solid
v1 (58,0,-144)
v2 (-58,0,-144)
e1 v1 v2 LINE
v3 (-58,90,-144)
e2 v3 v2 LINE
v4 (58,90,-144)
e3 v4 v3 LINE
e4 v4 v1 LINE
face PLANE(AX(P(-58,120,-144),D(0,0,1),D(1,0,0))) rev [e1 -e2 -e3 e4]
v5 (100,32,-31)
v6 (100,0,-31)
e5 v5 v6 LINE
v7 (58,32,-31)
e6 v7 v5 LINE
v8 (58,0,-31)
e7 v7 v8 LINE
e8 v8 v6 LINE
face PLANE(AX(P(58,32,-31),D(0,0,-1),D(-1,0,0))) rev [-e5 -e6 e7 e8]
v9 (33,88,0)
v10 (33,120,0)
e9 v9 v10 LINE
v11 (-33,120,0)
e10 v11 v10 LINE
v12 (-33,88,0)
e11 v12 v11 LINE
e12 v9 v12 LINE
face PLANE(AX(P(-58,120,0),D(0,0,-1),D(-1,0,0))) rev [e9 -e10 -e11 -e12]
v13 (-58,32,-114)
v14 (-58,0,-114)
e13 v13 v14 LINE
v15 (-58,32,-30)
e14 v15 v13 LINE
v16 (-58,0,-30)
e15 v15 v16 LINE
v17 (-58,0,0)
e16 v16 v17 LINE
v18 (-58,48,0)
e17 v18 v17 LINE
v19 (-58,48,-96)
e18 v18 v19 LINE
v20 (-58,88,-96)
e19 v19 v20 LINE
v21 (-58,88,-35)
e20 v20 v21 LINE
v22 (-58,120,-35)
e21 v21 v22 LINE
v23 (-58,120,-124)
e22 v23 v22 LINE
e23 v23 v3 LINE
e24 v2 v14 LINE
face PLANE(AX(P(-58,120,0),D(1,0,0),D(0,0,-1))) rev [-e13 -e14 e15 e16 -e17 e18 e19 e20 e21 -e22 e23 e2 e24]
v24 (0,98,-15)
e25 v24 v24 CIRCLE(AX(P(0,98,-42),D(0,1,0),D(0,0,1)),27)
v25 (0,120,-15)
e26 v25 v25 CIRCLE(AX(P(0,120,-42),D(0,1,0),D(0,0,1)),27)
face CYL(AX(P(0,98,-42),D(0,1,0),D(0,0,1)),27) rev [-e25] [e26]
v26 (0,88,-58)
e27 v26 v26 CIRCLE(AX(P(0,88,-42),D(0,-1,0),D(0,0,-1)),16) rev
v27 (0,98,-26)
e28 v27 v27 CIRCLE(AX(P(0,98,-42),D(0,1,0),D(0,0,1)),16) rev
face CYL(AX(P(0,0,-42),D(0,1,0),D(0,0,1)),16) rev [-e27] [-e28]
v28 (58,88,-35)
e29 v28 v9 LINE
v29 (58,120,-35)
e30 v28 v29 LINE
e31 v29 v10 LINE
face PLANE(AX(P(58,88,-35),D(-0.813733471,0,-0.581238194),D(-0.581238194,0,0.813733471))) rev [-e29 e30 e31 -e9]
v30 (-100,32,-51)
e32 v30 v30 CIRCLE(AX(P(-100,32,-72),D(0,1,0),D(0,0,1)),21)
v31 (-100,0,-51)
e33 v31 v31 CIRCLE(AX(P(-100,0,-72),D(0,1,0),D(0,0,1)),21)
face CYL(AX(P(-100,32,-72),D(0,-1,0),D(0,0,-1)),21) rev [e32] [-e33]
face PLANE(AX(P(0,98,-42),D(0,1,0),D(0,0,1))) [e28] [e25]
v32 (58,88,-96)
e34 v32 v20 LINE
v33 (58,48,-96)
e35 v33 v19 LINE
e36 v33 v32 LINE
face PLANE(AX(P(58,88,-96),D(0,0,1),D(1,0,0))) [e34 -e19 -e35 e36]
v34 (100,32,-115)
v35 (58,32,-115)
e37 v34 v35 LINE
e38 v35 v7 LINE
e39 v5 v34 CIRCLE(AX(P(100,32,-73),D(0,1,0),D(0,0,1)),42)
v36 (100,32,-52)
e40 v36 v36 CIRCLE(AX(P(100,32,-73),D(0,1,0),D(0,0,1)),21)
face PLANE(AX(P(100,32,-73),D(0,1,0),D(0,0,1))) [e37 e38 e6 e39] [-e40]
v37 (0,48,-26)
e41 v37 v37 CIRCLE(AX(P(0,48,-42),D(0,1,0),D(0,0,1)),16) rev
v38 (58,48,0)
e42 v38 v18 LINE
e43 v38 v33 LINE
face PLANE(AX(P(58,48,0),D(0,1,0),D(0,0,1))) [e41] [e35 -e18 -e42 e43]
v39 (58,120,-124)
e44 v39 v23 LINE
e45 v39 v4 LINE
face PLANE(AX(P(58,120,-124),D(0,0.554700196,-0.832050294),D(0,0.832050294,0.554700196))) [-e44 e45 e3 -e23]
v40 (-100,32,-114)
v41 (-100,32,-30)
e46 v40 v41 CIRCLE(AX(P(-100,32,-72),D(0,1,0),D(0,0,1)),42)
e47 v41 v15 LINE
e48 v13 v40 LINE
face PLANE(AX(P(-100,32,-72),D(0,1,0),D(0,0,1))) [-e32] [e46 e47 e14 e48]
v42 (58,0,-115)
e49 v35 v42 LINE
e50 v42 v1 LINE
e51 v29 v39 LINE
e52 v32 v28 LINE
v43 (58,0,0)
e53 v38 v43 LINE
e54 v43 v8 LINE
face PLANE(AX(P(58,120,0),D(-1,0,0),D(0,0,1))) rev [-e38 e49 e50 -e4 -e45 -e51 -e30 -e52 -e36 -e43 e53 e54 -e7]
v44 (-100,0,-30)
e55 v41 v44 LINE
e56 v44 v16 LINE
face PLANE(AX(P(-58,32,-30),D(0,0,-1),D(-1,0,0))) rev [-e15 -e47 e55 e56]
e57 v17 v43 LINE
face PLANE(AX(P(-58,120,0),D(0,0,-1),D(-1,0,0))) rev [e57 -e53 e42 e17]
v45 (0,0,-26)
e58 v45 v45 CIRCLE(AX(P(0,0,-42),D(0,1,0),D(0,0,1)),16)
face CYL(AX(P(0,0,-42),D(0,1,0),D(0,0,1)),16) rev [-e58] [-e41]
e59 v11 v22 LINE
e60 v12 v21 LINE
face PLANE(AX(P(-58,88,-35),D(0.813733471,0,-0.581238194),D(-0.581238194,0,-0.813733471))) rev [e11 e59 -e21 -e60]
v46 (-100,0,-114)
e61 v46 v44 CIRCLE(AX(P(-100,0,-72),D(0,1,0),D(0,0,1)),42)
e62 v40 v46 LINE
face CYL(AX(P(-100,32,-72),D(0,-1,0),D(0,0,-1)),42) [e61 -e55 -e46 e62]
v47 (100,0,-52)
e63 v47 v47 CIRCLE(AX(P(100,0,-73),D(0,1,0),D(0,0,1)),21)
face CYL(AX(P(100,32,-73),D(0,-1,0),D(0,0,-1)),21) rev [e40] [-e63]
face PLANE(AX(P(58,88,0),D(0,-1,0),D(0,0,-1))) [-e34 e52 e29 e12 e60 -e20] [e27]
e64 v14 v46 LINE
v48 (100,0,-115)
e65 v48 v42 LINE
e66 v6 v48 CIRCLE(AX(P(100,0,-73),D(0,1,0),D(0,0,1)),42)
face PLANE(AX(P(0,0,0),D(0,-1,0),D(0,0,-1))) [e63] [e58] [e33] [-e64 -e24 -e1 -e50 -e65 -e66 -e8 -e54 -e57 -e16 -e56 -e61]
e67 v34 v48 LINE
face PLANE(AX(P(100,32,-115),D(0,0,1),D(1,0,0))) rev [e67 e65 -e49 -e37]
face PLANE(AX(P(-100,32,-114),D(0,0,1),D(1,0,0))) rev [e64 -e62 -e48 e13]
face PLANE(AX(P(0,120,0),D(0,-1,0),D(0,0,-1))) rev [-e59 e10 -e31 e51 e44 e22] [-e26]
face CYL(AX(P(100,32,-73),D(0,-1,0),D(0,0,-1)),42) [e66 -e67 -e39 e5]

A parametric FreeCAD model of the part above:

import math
import FreeCAD as App
import Part
import Sketcher
from FreeCAD import Vector
Q = App.Units.Quantity


def add_polygon(sketch, points):
    """Adds a closed chain of lines whose ends are joined by coincident constraints."""
    first, n = sketch.GeometryCount, len(points)
    for a, b in zip(points, points[1:] + points[:1]):
        sketch.addGeometry(Part.LineSegment(App.Vector(*a, 0), App.Vector(*b, 0)), False)
    for i in range(n):
        sketch.addConstraint(Sketcher.Constraint("Coincident", first + i, 2, first + (i + 1) % n, 1))

doc = App.newDocument("Part")
body = doc.addObject("PartDesign::Body", "Body")

sketch1 = body.newObject("Sketcher::SketchObject", "Sketch")
sketch1.AttachmentSupport = (doc.getObject("XZ_Plane"), [""])
sketch1.MapMode = "FlatFace"
add_polygon(sketch1, [(-58, -144), (-58, 0), (58, 0), (58, -144)])
sketch1.addConstraint(Sketcher.Constraint("Vertical", 0))
sketch1.addConstraint(Sketcher.Constraint("Horizontal", 1))
sketch1.addConstraint(Sketcher.Constraint("Vertical", 2))
sketch1.addConstraint(Sketcher.Constraint("Horizontal", 3))
sketch1.addConstraint(Sketcher.Constraint("Symmetric", 0, 2, 1, 2, -1, 1))
sketch1.addConstraint(Sketcher.Constraint("DistanceX", 1, 1, 1, 2, Q("116 mm")))
sketch1.addConstraint(Sketcher.Constraint("DistanceY", 0, 1, 0, 2, Q("144 mm")))
pad1 = body.newObject("PartDesign::Pad", "Pad")
pad1.Profile = sketch1
pad1.Length = 120
pad1.Reversed = True

sketch2 = body.newObject("Sketcher::SketchObject", "Sketch001")
sketch2.AttachmentSupport = (doc.getObject("XZ_Plane"), [""])
sketch2.MapMode = "FlatFace"
sketch2.addGeometry(Part.LineSegment(Vector(-58, -114, 0), Vector(-100, -114, 0)), False)
sketch2.addGeometry(Part.ArcOfCircle(Part.Circle(Vector(-100, -72, 0), Vector(0, 0, 1), 42), math.radians(90), math.radians(270)), False)
sketch2.addGeometry(Part.LineSegment(Vector(-100, -30, 0), Vector(-58, -30, 0)), False)
sketch2.addGeometry(Part.LineSegment(Vector(-58, -30, 0), Vector(-58, -114, 0)), False)
sketch2.addGeometry(Part.Circle(Vector(-100, -72, 0), Vector(0, 0, 1), 21), False)
sketch2.addGeometry(Part.LineSegment(Vector(100, -115, 0), Vector(58, -115, 0)), False)
sketch2.addGeometry(Part.LineSegment(Vector(58, -115, 0), Vector(58, -31, 0)), False)
sketch2.addGeometry(Part.LineSegment(Vector(58, -31, 0), Vector(100, -31, 0)), False)
sketch2.addGeometry(Part.ArcOfCircle(Part.Circle(Vector(100, -73, 0), Vector(0, 0, 1), 42), math.radians(-90), math.radians(90)), False)
sketch2.addGeometry(Part.Circle(Vector(100, -73, 0), Vector(0, 0, 1), 21), False)
sketch2.addConstraint(Sketcher.Constraint("Tangent", 0, 2, 1, 2))
sketch2.addConstraint(Sketcher.Constraint("Tangent", 1, 1, 2, 1))
sketch2.addConstraint(Sketcher.Constraint("Coincident", 2, 2, 3, 1))
sketch2.addConstraint(Sketcher.Constraint("Coincident", 3, 2, 0, 1))
sketch2.addConstraint(Sketcher.Constraint("Coincident", 5, 2, 6, 1))
sketch2.addConstraint(Sketcher.Constraint("Coincident", 6, 2, 7, 1))
sketch2.addConstraint(Sketcher.Constraint("Tangent", 7, 2, 8, 2))
sketch2.addConstraint(Sketcher.Constraint("Tangent", 8, 1, 5, 1))
sketch2.addConstraint(Sketcher.Constraint("Horizontal", 0))
sketch2.addConstraint(Sketcher.Constraint("Horizontal", 2))
sketch2.addConstraint(Sketcher.Constraint("Vertical", 3))
sketch2.addConstraint(Sketcher.Constraint("Horizontal", 5))
sketch2.addConstraint(Sketcher.Constraint("Vertical", 6))
sketch2.addConstraint(Sketcher.Constraint("Horizontal", 7))
sketch2.addConstraint(Sketcher.Constraint("Coincident", 4, 3, 1, 3))
sketch2.addConstraint(Sketcher.Constraint("Coincident", 9, 3, 8, 3))
sketch2.addConstraint(Sketcher.Constraint("Equal", 1, 8))
sketch2.addConstraint(Sketcher.Constraint("Equal", 4, 9))
sketch2.addConstraint(Sketcher.Constraint("Equal", 2, 5))
sketch2.addConstraint(Sketcher.Constraint("Diameter", 4, Q("42 mm")))
sketch2.addConstraint(Sketcher.Constraint("Radius", 1, Q("42 mm")))
sketch2.addConstraint(Sketcher.Constraint("DistanceX", 0, 2, 0, 1, Q("42 mm")))
sketch2.addConstraint(Sketcher.Constraint("DistanceX", 1, 3, -1, 1, Q("100 mm")))
sketch2.addConstraint(Sketcher.Constraint("DistanceY", 1, 3, -1, 1, Q("72 mm")))
sketch2.addConstraint(Sketcher.Constraint("DistanceX", -1, 1, 8, 3, Q("100 mm")))
sketch2.addConstraint(Sketcher.Constraint("DistanceY", 8, 3, -1, 1, Q("73 mm")))
pad2 = body.newObject("PartDesign::Pad", "Pad001")
pad2.Profile = sketch2
pad2.Length = 32
pad2.Reversed = True

sketch3 = body.newObject("Sketcher::SketchObject", "Sketch002")
sketch3.AttachmentSupport = (doc.getObject("XZ_Plane"), [""])
sketch3.MapMode = "FlatFace"
sketch3.AttachmentOffset = App.Placement(Vector(0, 0, -120), App.Rotation())
sketch3.addGeometry(Part.Circle(Vector(0, -42, 0), Vector(0, 0, 1), 16), False)
sketch3.addConstraint(Sketcher.Constraint("PointOnObject", 0, 3, -2))
sketch3.addConstraint(Sketcher.Constraint("Diameter", 0, Q("32 mm")))
sketch3.addConstraint(Sketcher.Constraint("DistanceY", 0, 3, -1, 1, Q("42 mm")))
pocket1 = body.newObject("PartDesign::Pocket", "Pocket")
pocket1.Profile = sketch3
pocket1.Length = 120
pocket1.Reversed = True

sketch4 = body.newObject("Sketcher::SketchObject", "Sketch003")
sketch4.AttachmentSupport = (doc.getObject("XZ_Plane"), [""])
sketch4.MapMode = "FlatFace"
sketch4.AttachmentOffset = App.Placement(Vector(0, 0, -120), App.Rotation())
sketch4.addGeometry(Part.Circle(Vector(0, -42, 0), Vector(0, 0, 1), 27), False)
sketch4.addConstraint(Sketcher.Constraint("PointOnObject", 0, 3, -2))
sketch4.addConstraint(Sketcher.Constraint("Diameter", 0, Q("54 mm")))
sketch4.addConstraint(Sketcher.Constraint("DistanceY", 0, 3, -1, 1, Q("42 mm")))
pocket2 = body.newObject("PartDesign::Pocket", "Pocket001")
pocket2.Profile = sketch4
pocket2.Length = 22
pocket2.Reversed = True

sketch5 = body.newObject("Sketcher::SketchObject", "Sketch004")
sketch5.AttachmentSupport = (doc.getObject("YZ_Plane"), [""])
sketch5.MapMode = "FlatFace"
add_polygon(sketch5, [(120, -144), (120, -124), (90, -144)])
add_polygon(sketch5, [(88, 0), (48, 0), (48, -96), (88, -96)])
sketch5.addConstraint(Sketcher.Constraint("Vertical", 0))
sketch5.addConstraint(Sketcher.Constraint("Horizontal", 2))
sketch5.addConstraint(Sketcher.Constraint("Horizontal", 3))
sketch5.addConstraint(Sketcher.Constraint("Vertical", 4))
sketch5.addConstraint(Sketcher.Constraint("Horizontal", 5))
sketch5.addConstraint(Sketcher.Constraint("Vertical", 6))
sketch5.addConstraint(Sketcher.Constraint("PointOnObject", 3, 2, -1))
sketch5.addConstraint(Sketcher.Constraint("DistanceX", 2, 1, 2, 2, Q("30 mm")))
sketch5.addConstraint(Sketcher.Constraint("DistanceX", 3, 2, 3, 1, Q("40 mm")))
sketch5.addConstraint(Sketcher.Constraint("DistanceY", 0, 1, 0, 2, Q("20 mm")))
sketch5.addConstraint(Sketcher.Constraint("DistanceY", 4, 2, 4, 1, Q("96 mm")))
sketch5.addConstraint(Sketcher.Constraint("DistanceX", -1, 1, 0, 2, Q("120 mm")))
sketch5.addConstraint(Sketcher.Constraint("DistanceY", 0, 2, -1, 1, Q("124 mm")))
sketch5.addConstraint(Sketcher.Constraint("DistanceX", -1, 1, 3, 2, Q("48 mm")))
pocket3 = body.newObject("PartDesign::Pocket", "Pocket002")
pocket3.Profile = sketch5
pocket3.Type = "ThroughAll"
pocket3.Midplane = True

sketch6 = body.newObject("Sketcher::SketchObject", "Sketch005")
sketch6.AttachmentSupport = (doc.getObject("XZ_Plane"), [""])
sketch6.MapMode = "FlatFace"
sketch6.AttachmentOffset = App.Placement(Vector(0, 0, -120), App.Rotation())
add_polygon(sketch6, [(-58, -35), (-58, 0), (-33, 0)])
add_polygon(sketch6, [(58, 0), (58, -35), (33, 0)])
sketch6.addConstraint(Sketcher.Constraint("Vertical", 0))
sketch6.addConstraint(Sketcher.Constraint("Horizontal", 1))
sketch6.addConstraint(Sketcher.Constraint("Vertical", 3))
sketch6.addConstraint(Sketcher.Constraint("Horizontal", 5))
sketch6.addConstraint(Sketcher.Constraint("Symmetric", 1, 2, 4, 2, -1, 1))
sketch6.addConstraint(Sketcher.Constraint("Symmetric", 2, 2, 3, 2, -2))
sketch6.addConstraint(Sketcher.Constraint("PointOnObject", 0, 2, -1))
sketch6.addConstraint(Sketcher.Constraint("DistanceX", 1, 1, 1, 2, Q("25 mm")))
sketch6.addConstraint(Sketcher.Constraint("DistanceY", 0, 1, 0, 2, Q("35 mm")))
sketch6.addConstraint(Sketcher.Constraint("DistanceX", 0, 2, -1, 1, Q("58 mm")))
pocket4 = body.newObject("PartDesign::Pocket", "Pocket003")
pocket4.Profile = sketch6
pocket4.Length = 32
pocket4.Reversed = True

doc.recompute()
